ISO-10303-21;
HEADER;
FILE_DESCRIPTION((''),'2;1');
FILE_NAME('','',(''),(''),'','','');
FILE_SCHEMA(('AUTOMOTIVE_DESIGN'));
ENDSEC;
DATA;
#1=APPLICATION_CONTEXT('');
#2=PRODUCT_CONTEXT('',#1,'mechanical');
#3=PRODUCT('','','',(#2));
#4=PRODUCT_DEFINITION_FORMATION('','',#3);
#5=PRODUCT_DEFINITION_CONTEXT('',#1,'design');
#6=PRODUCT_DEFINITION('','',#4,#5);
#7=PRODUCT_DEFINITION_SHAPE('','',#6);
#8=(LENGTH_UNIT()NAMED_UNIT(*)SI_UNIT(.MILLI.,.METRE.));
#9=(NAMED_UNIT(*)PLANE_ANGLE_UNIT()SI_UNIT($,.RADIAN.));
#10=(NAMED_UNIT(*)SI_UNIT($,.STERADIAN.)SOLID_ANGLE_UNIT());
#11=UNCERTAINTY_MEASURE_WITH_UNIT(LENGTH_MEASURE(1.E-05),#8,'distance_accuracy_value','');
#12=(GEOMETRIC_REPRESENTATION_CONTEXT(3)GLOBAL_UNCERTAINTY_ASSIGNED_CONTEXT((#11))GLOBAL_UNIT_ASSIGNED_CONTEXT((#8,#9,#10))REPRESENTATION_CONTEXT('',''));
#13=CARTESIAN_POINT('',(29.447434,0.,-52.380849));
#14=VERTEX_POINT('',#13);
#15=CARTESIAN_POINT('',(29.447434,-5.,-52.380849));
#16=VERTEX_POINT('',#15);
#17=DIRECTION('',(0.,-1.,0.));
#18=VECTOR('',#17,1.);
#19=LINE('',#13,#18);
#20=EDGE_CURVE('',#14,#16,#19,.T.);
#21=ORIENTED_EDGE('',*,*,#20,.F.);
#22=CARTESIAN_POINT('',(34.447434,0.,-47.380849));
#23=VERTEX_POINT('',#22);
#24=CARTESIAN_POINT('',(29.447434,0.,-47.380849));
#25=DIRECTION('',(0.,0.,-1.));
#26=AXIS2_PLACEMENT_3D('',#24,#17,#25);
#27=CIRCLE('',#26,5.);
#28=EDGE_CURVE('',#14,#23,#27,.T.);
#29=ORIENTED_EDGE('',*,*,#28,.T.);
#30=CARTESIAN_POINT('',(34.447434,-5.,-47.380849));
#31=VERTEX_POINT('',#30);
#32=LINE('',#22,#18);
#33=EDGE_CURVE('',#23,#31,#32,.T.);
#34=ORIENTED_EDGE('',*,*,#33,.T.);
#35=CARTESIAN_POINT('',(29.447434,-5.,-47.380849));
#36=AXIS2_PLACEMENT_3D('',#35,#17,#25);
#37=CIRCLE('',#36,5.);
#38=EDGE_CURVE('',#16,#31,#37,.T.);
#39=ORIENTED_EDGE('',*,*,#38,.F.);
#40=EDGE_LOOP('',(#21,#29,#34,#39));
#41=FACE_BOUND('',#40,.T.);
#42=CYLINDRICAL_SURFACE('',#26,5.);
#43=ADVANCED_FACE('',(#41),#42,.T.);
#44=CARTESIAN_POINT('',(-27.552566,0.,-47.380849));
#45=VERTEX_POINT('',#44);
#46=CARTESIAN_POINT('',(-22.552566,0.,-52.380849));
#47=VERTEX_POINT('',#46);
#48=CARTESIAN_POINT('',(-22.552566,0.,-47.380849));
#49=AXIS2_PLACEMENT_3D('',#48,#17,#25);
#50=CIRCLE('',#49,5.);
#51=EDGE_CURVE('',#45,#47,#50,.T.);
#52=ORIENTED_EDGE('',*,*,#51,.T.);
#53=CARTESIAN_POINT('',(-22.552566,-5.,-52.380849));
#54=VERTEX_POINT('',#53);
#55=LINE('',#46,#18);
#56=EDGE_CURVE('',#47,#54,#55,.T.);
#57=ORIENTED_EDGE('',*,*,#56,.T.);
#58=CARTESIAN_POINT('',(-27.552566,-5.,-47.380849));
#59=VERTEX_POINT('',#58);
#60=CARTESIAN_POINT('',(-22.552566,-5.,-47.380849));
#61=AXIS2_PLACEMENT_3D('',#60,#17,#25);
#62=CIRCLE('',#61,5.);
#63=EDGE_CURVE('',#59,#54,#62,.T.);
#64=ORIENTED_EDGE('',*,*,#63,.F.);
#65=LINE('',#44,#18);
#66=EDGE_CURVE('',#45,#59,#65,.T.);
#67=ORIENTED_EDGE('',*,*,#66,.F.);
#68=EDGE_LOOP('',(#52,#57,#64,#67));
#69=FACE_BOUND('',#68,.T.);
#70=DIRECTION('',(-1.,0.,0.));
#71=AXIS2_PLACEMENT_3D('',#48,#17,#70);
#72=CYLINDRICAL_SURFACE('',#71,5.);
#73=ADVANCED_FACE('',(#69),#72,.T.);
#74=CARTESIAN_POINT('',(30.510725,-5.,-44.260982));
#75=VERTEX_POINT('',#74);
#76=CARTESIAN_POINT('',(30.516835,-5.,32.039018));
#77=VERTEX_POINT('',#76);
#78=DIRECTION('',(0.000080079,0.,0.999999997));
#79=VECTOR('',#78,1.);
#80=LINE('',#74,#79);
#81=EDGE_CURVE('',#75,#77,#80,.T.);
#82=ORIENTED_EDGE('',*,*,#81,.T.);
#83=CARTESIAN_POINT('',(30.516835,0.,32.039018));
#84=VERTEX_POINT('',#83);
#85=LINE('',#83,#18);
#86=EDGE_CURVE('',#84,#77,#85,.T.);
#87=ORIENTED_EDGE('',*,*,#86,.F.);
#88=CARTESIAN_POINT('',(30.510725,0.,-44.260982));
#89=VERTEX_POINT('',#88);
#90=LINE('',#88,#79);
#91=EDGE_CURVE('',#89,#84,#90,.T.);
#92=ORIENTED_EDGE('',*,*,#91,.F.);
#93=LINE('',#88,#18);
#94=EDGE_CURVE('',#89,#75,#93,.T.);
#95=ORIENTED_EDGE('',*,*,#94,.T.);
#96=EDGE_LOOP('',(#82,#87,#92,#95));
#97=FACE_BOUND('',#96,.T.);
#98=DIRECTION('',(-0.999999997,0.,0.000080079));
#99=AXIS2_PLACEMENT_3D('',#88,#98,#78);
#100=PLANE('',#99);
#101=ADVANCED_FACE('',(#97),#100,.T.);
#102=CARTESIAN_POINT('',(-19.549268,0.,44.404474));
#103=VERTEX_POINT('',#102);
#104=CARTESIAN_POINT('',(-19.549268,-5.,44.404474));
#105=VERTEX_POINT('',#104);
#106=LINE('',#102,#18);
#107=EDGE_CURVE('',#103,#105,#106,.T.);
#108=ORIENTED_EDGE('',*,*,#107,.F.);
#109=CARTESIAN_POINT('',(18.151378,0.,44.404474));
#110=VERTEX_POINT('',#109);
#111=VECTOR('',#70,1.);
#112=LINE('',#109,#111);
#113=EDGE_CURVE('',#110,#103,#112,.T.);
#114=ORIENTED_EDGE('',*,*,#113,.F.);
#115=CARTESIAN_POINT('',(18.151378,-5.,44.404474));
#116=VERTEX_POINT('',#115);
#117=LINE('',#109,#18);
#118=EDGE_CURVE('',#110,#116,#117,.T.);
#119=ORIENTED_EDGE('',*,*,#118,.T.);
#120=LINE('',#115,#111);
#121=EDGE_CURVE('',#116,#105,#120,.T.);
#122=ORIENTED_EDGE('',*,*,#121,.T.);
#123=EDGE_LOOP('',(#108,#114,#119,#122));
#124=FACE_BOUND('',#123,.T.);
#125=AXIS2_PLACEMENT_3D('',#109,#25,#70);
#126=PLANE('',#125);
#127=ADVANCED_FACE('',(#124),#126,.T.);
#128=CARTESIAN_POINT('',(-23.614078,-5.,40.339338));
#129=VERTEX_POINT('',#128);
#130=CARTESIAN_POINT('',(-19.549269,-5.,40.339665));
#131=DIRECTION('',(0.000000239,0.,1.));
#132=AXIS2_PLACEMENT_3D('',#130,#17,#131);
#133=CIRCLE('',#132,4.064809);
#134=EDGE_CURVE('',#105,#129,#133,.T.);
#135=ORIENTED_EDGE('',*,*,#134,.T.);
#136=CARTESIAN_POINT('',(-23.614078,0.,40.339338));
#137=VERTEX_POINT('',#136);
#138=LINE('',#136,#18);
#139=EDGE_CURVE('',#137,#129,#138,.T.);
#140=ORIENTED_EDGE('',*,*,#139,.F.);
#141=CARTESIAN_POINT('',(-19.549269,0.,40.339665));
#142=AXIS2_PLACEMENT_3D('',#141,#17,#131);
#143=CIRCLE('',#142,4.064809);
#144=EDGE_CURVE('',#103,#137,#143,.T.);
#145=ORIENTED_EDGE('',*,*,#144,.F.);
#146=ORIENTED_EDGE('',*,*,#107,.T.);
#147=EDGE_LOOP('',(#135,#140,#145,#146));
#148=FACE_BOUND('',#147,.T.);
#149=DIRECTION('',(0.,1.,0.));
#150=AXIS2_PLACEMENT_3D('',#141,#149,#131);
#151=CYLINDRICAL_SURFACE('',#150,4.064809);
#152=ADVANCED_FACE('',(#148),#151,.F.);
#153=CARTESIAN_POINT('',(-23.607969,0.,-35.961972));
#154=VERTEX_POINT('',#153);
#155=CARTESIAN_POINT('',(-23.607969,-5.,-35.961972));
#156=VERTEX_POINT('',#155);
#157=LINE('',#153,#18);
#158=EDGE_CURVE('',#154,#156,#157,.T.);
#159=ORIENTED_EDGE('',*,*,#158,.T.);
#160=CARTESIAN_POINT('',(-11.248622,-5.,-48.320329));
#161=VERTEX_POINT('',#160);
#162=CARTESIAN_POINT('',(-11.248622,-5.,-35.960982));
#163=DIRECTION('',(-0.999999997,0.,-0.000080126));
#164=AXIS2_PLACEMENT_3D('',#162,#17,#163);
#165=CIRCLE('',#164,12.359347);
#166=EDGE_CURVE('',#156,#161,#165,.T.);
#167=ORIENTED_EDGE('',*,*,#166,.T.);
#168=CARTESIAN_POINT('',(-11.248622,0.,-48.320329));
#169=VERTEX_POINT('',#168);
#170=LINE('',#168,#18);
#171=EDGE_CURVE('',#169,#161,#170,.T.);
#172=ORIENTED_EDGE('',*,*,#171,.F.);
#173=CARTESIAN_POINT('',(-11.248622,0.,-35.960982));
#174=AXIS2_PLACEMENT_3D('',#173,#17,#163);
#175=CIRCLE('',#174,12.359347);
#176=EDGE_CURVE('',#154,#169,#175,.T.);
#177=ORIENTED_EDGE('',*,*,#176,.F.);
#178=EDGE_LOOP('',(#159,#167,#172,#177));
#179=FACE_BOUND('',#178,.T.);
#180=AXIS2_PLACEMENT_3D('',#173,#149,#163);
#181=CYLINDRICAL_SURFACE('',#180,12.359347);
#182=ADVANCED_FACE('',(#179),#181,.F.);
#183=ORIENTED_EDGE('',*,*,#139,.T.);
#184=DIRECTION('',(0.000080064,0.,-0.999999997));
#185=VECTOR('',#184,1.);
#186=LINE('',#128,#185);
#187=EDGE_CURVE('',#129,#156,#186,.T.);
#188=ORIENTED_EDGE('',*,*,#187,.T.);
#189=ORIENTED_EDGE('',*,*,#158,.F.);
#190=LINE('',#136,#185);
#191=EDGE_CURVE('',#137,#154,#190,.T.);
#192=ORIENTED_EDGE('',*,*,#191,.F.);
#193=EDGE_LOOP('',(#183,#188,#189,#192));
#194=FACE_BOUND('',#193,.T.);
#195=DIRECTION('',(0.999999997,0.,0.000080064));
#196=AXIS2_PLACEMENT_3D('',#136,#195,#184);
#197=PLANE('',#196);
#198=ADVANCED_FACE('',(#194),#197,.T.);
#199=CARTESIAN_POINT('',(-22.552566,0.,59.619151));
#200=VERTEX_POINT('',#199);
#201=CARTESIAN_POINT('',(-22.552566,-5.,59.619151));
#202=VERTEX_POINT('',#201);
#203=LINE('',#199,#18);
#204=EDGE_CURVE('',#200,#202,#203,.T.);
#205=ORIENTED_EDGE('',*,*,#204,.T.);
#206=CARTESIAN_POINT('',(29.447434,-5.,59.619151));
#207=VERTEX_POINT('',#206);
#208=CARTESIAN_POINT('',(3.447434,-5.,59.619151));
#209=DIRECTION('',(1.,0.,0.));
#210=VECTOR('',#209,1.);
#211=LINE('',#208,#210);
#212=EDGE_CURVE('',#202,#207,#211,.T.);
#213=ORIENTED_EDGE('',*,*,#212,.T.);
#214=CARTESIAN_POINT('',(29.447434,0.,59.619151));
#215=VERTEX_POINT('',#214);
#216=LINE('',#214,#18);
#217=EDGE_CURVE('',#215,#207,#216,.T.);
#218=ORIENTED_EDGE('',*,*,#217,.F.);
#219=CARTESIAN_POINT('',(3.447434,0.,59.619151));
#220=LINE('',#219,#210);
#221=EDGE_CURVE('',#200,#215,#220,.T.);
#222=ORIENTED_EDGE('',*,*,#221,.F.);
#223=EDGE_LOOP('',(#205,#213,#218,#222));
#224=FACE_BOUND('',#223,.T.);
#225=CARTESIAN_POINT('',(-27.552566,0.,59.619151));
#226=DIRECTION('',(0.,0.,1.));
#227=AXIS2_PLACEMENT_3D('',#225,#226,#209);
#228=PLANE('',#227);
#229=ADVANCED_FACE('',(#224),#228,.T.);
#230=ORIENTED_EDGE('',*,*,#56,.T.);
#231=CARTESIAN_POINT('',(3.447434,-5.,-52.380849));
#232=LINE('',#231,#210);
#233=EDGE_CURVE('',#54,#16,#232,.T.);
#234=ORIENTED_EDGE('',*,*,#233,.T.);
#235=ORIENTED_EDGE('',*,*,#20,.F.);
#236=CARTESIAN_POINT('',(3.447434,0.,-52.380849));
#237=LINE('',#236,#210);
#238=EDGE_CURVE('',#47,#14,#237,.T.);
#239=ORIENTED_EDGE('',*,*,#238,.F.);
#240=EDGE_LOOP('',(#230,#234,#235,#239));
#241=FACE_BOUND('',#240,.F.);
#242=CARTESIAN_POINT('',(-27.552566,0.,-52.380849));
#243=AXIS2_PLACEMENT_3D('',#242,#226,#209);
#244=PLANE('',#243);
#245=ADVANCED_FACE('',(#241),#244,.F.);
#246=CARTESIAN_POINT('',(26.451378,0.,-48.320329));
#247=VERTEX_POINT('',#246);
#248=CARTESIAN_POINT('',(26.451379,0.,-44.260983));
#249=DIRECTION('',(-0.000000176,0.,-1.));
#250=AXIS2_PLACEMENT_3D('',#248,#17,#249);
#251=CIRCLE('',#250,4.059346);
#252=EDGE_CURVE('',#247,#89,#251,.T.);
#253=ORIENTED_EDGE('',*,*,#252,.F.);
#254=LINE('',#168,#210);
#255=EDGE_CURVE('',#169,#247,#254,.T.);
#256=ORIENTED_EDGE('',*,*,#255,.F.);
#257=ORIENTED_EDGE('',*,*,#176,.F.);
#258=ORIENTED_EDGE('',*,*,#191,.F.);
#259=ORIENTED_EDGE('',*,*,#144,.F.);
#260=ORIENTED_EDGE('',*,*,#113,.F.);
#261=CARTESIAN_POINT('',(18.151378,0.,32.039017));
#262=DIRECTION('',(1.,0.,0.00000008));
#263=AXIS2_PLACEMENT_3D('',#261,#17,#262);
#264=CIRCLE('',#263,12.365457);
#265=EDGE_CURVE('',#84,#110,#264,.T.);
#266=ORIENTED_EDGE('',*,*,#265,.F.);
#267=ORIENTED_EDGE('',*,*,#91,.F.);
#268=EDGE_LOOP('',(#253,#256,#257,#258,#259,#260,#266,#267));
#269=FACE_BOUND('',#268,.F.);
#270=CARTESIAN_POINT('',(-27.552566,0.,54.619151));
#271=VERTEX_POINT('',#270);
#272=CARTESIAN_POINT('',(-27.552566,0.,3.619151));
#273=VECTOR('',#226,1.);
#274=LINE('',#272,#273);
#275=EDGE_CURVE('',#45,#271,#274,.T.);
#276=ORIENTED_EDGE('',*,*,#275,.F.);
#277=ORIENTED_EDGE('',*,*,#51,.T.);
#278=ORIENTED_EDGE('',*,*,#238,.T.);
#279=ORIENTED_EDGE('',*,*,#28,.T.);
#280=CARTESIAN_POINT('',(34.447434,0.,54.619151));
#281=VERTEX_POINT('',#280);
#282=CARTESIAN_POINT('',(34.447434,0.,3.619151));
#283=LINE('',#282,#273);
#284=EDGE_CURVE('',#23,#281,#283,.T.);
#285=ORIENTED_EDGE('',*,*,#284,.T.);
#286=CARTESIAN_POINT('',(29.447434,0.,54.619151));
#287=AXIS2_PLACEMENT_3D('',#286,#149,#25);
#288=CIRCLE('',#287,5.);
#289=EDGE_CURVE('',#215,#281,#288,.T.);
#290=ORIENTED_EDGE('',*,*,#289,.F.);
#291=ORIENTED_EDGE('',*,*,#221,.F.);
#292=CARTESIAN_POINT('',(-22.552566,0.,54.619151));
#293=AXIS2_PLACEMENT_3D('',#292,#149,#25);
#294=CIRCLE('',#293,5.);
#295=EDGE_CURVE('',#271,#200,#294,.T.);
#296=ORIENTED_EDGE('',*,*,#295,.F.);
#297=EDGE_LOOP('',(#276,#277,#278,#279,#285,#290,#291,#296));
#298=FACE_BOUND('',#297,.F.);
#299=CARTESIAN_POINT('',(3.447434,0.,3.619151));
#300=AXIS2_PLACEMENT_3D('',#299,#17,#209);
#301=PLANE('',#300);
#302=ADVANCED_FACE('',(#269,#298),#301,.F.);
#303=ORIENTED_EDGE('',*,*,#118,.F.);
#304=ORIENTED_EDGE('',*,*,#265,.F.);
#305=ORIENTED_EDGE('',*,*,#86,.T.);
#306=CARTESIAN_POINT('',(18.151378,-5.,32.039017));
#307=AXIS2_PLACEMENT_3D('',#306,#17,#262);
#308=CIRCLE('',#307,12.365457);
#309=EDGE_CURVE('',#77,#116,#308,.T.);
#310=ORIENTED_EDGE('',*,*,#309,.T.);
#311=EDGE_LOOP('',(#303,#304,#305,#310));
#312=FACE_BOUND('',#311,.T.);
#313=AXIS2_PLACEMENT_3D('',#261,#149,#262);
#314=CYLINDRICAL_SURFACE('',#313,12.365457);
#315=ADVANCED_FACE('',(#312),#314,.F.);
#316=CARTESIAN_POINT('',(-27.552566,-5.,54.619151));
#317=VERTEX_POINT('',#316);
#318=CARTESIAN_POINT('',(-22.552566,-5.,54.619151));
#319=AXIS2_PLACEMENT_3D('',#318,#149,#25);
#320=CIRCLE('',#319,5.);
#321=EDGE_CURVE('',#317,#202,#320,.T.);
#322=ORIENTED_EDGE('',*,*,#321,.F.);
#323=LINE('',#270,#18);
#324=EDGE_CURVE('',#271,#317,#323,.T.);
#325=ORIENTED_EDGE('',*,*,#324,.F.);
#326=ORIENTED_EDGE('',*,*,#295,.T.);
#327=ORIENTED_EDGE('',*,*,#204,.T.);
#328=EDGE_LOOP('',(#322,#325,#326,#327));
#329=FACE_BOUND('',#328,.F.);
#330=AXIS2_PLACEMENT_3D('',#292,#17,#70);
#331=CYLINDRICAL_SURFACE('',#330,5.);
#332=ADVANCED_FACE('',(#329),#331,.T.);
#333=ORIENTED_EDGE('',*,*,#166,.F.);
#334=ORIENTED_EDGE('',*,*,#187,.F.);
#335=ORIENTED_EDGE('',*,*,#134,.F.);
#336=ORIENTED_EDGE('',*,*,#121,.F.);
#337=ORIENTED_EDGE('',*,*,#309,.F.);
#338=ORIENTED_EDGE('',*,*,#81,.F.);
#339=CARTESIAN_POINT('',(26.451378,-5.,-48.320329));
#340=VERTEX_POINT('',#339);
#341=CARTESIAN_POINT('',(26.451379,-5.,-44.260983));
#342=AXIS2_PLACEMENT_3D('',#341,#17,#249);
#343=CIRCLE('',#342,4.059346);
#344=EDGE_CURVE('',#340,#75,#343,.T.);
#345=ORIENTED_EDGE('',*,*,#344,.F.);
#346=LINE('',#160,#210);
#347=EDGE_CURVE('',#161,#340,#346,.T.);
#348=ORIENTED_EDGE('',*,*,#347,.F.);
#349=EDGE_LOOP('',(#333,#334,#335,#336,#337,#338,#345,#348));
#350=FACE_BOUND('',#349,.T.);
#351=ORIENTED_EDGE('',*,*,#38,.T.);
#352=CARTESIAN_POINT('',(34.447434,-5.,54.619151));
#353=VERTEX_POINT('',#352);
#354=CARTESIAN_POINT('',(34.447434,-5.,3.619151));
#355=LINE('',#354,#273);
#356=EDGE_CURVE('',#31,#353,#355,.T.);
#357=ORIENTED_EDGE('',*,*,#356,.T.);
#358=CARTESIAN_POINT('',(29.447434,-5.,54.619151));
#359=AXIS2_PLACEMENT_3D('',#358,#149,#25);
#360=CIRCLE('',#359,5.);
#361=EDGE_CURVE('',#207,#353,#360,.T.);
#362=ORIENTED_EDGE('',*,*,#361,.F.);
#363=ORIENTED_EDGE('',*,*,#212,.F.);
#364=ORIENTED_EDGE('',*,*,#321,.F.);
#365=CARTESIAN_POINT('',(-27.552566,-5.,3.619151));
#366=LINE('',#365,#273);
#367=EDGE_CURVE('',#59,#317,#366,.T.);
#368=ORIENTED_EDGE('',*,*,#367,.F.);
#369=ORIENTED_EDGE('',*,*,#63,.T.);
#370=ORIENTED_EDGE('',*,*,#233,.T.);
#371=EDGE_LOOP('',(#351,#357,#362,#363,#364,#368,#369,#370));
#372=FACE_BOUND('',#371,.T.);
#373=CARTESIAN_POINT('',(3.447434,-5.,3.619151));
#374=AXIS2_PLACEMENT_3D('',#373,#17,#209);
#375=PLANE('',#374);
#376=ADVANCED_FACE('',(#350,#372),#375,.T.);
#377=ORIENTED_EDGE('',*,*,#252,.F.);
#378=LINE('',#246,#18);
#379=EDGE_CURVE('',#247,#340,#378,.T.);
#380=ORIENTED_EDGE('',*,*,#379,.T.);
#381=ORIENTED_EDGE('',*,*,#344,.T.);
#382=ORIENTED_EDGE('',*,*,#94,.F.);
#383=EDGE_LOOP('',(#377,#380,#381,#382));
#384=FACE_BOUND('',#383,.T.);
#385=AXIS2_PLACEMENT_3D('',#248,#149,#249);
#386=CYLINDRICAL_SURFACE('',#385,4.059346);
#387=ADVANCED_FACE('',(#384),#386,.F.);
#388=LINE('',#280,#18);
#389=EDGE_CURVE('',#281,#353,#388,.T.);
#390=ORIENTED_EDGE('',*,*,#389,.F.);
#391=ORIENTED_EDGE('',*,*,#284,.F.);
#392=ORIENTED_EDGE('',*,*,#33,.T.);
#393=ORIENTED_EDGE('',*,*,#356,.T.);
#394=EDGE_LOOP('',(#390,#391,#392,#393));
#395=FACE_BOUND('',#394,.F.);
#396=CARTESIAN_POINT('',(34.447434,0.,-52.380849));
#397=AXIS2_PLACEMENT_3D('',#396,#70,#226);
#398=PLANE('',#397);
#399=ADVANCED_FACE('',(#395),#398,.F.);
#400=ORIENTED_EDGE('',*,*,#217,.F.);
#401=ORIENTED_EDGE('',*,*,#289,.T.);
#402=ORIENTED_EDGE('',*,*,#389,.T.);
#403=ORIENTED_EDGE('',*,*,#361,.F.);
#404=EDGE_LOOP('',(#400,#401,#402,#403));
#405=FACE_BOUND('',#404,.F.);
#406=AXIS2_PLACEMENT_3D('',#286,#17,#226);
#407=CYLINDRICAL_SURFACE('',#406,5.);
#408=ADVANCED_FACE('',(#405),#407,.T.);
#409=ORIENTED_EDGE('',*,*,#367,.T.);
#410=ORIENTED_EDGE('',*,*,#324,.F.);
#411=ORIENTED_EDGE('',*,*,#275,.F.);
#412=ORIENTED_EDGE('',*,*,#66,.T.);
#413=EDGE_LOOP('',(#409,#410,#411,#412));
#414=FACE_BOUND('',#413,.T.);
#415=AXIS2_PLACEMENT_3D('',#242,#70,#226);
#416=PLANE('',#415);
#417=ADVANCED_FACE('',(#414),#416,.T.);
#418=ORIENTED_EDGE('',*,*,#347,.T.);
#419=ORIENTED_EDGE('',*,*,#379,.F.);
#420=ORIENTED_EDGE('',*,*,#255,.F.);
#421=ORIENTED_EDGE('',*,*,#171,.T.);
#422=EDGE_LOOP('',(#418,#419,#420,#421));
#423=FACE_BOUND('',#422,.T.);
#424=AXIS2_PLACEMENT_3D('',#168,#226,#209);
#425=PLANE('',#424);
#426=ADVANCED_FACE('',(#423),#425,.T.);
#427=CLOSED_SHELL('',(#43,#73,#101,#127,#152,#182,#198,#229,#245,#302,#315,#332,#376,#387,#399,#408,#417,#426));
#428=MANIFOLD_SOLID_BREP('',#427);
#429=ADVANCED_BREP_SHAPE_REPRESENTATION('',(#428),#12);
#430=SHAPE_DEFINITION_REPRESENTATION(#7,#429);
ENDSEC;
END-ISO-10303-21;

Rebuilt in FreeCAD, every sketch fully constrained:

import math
import FreeCAD as App
import Part
import Sketcher
from FreeCAD import Vector
Q = App.Units.Quantity


def edges_at(feature, points):
    """Names of the edges that pass closest to the given points."""
    edges = feature.Shape.Edges
    near = lambda p: min(range(len(edges)), key=lambda i: edges[i].distToShape(Part.Vertex(*p))[0])
    return sorted({f"Edge{near(p) + 1}" for p in points})


def add_polygon(sketch, points):
    """Adds a closed chain of lines whose ends are joined by coincident constraints."""
    first, n = sketch.GeometryCount, len(points)
    for a, b in zip(points, points[1:] + points[:1]):
        sketch.addGeometry(Part.LineSegment(App.Vector(*a, 0), App.Vector(*b, 0)), False)
    for i in range(n):
        sketch.addConstraint(Sketcher.Constraint("Coincident", first + i, 2, first + (i + 1) % n, 1))

doc = App.newDocument("Part")
body = doc.addObject("PartDesign::Body", "Body")

# Sketch on XZ plane
sketch1 = doc.addObject("Sketcher::SketchObject", "Sketch")
body.addObject(sketch1)
sketch1.AttachmentSupport = (doc.XZ_Plane, [""])
sketch1.MapMode = "FlatFace"
add_polygon(sketch1, [(-28, 60), (-28, -52), (34, -52), (34, 60)])  # lines 0-3
sketch1.addConstraint(Sketcher.Constraint("Vertical", 0))
sketch1.addConstraint(Sketcher.Constraint("Horizontal", 1))
sketch1.addConstraint(Sketcher.Constraint("Vertical", 2))
sketch1.addConstraint(Sketcher.Constraint("Horizontal", 3))
sketch1.addConstraint(Sketcher.Constraint("DistanceX", 1, 1, 1, 2, Q("62 mm")))
sketch1.addConstraint(Sketcher.Constraint("DistanceY", 0, 2, 0, 1, Q("112 mm")))
sketch1.addConstraint(Sketcher.Constraint("DistanceY", 0, 2, -1, 1, Q("52.380849 mm")))
sketch1.addConstraint(Sketcher.Constraint("DistanceX", 0, 2, -1, 1, Q("27.552566 mm")))
pad1 = doc.addObject("PartDesign::Pad", "Pad")
body.addObject(pad1)
pad1.Profile = sketch1
pad1.Length = 5

# Sketch on XZ plane
sketch2 = doc.addObject("Sketcher::SketchObject", "Sketch001")
body.addObject(sketch2)
sketch2.AttachmentSupport = (doc.XZ_Plane, [""])
sketch2.MapMode = "FlatFace"
sketch2.addGeometry(Part.ArcOfCircle(Part.Circle(Vector(18.2, 32, 0), Vector(0, 0, 1), 12.4), math.radians(0), math.radians(90)), False)
sketch2.addGeometry(Part.LineSegment(Vector(18.2, 44.4, 0), Vector(-19.5, 44.4, 0)), False)
sketch2.addGeometry(Part.ArcOfCircle(Part.Circle(Vector(-19.5, 40.3, 0), Vector(0, 0, 1), 4.1), math.radians(90), math.radians(180)), False)
sketch2.addGeometry(Part.LineSegment(Vector(-23.6, 40.3, 0), Vector(-23.6, -36, 0)), False)
sketch2.addGeometry(Part.ArcOfCircle(Part.Circle(Vector(-11.2, -36, 0), Vector(0, 0, 1), 12.4), math.radians(-180), math.radians(-90)), False)
sketch2.addGeometry(Part.LineSegment(Vector(-11.2, -48.3, 0), Vector(26.5, -48.3, 0)), False)
sketch2.addGeometry(Part.ArcOfCircle(Part.Circle(Vector(26.5, -44.3, 0), Vector(0, 0, 1), 4.1), math.radians(-90), math.radians(0)), False)
sketch2.addGeometry(Part.LineSegment(Vector(30.5, -44.3, 0), Vector(30.5, 32, 0)), False)
sketch2.addConstraint(Sketcher.Constraint("Tangent", 0, 2, 1, 1))
sketch2.addConstraint(Sketcher.Constraint("Tangent", 1, 2, 2, 1))
sketch2.addConstraint(Sketcher.Constraint("Tangent", 2, 2, 3, 1))
sketch2.addConstraint(Sketcher.Constraint("Tangent", 3, 2, 4, 1))
sketch2.addConstraint(Sketcher.Constraint("Tangent", 4, 2, 5, 1))
sketch2.addConstraint(Sketcher.Constraint("Tangent", 5, 2, 6, 1))
sketch2.addConstraint(Sketcher.Constraint("Coincident", 6, 2, 7, 1))
sketch2.addConstraint(Sketcher.Constraint("Coincident", 7, 2, 0, 1))
sketch2.addConstraint(Sketcher.Constraint("Horizontal", 1))
sketch2.addConstraint(Sketcher.Constraint("Horizontal", 5))
sketch2.addConstraint(Sketcher.Constraint("Horizontal", 0, 3, 7, 2))
sketch2.addConstraint(Sketcher.Constraint("DistanceX", 5, 1, 5, 2, Q("37.7 mm")))
sketch2.addConstraint(Sketcher.Constraint("DistanceY", 4, 3, 0, 3, Q("67.999999 mm")))
sketch2.addConstraint(Sketcher.Constraint("Distance", 7, Q("76.3 mm")))
sketch2.addConstraint(Sketcher.Constraint("DistanceX", 4, 3, 0, 3, Q("29.4 mm")))
sketch2.addConstraint(Sketcher.Constraint("DistanceY", 6, 3, 4, 3, Q("8.300001 mm")))
sketch2.addConstraint(Sketcher.Constraint("Radius", 2, Q("4.064809 mm")))
sketch2.addConstraint(Sketcher.Constraint("Radius", 0, Q("12.365457 mm")))
sketch2.addConstraint(Sketcher.Constraint("Radius", 4, Q("12.359347 mm")))
sketch2.addConstraint(Sketcher.Constraint("DistanceX", 3, 2, 2, 3, Q("4.0587 mm")))
sketch2.addConstraint(Sketcher.Constraint("DistanceX", -1, 1, 0, 3, Q("18.151378 mm")))
sketch2.addConstraint(Sketcher.Constraint("DistanceY", 4, 3, -1, 1, Q("35.960982 mm")))
pocket1 = doc.addObject("PartDesign::Pocket", "Pocket")
body.addObject(pocket1)
pocket1.Profile = sketch2
pocket1.Length = 5
pocket1.Reversed = True
doc.recompute()

fillet = doc.addObject("PartDesign::Fillet", "Fillet")
body.addObject(fillet)
fillet.Base = (pocket1, edges_at(pocket1, [
    (-27.553, -2.5, 59.619),
    (-27.553, -2.5, -52.381),
    (34.447, -2.5, -52.381),
    (34.447, -2.5, 59.619),
]))
fillet.Radius = 5

doc.recompute()
